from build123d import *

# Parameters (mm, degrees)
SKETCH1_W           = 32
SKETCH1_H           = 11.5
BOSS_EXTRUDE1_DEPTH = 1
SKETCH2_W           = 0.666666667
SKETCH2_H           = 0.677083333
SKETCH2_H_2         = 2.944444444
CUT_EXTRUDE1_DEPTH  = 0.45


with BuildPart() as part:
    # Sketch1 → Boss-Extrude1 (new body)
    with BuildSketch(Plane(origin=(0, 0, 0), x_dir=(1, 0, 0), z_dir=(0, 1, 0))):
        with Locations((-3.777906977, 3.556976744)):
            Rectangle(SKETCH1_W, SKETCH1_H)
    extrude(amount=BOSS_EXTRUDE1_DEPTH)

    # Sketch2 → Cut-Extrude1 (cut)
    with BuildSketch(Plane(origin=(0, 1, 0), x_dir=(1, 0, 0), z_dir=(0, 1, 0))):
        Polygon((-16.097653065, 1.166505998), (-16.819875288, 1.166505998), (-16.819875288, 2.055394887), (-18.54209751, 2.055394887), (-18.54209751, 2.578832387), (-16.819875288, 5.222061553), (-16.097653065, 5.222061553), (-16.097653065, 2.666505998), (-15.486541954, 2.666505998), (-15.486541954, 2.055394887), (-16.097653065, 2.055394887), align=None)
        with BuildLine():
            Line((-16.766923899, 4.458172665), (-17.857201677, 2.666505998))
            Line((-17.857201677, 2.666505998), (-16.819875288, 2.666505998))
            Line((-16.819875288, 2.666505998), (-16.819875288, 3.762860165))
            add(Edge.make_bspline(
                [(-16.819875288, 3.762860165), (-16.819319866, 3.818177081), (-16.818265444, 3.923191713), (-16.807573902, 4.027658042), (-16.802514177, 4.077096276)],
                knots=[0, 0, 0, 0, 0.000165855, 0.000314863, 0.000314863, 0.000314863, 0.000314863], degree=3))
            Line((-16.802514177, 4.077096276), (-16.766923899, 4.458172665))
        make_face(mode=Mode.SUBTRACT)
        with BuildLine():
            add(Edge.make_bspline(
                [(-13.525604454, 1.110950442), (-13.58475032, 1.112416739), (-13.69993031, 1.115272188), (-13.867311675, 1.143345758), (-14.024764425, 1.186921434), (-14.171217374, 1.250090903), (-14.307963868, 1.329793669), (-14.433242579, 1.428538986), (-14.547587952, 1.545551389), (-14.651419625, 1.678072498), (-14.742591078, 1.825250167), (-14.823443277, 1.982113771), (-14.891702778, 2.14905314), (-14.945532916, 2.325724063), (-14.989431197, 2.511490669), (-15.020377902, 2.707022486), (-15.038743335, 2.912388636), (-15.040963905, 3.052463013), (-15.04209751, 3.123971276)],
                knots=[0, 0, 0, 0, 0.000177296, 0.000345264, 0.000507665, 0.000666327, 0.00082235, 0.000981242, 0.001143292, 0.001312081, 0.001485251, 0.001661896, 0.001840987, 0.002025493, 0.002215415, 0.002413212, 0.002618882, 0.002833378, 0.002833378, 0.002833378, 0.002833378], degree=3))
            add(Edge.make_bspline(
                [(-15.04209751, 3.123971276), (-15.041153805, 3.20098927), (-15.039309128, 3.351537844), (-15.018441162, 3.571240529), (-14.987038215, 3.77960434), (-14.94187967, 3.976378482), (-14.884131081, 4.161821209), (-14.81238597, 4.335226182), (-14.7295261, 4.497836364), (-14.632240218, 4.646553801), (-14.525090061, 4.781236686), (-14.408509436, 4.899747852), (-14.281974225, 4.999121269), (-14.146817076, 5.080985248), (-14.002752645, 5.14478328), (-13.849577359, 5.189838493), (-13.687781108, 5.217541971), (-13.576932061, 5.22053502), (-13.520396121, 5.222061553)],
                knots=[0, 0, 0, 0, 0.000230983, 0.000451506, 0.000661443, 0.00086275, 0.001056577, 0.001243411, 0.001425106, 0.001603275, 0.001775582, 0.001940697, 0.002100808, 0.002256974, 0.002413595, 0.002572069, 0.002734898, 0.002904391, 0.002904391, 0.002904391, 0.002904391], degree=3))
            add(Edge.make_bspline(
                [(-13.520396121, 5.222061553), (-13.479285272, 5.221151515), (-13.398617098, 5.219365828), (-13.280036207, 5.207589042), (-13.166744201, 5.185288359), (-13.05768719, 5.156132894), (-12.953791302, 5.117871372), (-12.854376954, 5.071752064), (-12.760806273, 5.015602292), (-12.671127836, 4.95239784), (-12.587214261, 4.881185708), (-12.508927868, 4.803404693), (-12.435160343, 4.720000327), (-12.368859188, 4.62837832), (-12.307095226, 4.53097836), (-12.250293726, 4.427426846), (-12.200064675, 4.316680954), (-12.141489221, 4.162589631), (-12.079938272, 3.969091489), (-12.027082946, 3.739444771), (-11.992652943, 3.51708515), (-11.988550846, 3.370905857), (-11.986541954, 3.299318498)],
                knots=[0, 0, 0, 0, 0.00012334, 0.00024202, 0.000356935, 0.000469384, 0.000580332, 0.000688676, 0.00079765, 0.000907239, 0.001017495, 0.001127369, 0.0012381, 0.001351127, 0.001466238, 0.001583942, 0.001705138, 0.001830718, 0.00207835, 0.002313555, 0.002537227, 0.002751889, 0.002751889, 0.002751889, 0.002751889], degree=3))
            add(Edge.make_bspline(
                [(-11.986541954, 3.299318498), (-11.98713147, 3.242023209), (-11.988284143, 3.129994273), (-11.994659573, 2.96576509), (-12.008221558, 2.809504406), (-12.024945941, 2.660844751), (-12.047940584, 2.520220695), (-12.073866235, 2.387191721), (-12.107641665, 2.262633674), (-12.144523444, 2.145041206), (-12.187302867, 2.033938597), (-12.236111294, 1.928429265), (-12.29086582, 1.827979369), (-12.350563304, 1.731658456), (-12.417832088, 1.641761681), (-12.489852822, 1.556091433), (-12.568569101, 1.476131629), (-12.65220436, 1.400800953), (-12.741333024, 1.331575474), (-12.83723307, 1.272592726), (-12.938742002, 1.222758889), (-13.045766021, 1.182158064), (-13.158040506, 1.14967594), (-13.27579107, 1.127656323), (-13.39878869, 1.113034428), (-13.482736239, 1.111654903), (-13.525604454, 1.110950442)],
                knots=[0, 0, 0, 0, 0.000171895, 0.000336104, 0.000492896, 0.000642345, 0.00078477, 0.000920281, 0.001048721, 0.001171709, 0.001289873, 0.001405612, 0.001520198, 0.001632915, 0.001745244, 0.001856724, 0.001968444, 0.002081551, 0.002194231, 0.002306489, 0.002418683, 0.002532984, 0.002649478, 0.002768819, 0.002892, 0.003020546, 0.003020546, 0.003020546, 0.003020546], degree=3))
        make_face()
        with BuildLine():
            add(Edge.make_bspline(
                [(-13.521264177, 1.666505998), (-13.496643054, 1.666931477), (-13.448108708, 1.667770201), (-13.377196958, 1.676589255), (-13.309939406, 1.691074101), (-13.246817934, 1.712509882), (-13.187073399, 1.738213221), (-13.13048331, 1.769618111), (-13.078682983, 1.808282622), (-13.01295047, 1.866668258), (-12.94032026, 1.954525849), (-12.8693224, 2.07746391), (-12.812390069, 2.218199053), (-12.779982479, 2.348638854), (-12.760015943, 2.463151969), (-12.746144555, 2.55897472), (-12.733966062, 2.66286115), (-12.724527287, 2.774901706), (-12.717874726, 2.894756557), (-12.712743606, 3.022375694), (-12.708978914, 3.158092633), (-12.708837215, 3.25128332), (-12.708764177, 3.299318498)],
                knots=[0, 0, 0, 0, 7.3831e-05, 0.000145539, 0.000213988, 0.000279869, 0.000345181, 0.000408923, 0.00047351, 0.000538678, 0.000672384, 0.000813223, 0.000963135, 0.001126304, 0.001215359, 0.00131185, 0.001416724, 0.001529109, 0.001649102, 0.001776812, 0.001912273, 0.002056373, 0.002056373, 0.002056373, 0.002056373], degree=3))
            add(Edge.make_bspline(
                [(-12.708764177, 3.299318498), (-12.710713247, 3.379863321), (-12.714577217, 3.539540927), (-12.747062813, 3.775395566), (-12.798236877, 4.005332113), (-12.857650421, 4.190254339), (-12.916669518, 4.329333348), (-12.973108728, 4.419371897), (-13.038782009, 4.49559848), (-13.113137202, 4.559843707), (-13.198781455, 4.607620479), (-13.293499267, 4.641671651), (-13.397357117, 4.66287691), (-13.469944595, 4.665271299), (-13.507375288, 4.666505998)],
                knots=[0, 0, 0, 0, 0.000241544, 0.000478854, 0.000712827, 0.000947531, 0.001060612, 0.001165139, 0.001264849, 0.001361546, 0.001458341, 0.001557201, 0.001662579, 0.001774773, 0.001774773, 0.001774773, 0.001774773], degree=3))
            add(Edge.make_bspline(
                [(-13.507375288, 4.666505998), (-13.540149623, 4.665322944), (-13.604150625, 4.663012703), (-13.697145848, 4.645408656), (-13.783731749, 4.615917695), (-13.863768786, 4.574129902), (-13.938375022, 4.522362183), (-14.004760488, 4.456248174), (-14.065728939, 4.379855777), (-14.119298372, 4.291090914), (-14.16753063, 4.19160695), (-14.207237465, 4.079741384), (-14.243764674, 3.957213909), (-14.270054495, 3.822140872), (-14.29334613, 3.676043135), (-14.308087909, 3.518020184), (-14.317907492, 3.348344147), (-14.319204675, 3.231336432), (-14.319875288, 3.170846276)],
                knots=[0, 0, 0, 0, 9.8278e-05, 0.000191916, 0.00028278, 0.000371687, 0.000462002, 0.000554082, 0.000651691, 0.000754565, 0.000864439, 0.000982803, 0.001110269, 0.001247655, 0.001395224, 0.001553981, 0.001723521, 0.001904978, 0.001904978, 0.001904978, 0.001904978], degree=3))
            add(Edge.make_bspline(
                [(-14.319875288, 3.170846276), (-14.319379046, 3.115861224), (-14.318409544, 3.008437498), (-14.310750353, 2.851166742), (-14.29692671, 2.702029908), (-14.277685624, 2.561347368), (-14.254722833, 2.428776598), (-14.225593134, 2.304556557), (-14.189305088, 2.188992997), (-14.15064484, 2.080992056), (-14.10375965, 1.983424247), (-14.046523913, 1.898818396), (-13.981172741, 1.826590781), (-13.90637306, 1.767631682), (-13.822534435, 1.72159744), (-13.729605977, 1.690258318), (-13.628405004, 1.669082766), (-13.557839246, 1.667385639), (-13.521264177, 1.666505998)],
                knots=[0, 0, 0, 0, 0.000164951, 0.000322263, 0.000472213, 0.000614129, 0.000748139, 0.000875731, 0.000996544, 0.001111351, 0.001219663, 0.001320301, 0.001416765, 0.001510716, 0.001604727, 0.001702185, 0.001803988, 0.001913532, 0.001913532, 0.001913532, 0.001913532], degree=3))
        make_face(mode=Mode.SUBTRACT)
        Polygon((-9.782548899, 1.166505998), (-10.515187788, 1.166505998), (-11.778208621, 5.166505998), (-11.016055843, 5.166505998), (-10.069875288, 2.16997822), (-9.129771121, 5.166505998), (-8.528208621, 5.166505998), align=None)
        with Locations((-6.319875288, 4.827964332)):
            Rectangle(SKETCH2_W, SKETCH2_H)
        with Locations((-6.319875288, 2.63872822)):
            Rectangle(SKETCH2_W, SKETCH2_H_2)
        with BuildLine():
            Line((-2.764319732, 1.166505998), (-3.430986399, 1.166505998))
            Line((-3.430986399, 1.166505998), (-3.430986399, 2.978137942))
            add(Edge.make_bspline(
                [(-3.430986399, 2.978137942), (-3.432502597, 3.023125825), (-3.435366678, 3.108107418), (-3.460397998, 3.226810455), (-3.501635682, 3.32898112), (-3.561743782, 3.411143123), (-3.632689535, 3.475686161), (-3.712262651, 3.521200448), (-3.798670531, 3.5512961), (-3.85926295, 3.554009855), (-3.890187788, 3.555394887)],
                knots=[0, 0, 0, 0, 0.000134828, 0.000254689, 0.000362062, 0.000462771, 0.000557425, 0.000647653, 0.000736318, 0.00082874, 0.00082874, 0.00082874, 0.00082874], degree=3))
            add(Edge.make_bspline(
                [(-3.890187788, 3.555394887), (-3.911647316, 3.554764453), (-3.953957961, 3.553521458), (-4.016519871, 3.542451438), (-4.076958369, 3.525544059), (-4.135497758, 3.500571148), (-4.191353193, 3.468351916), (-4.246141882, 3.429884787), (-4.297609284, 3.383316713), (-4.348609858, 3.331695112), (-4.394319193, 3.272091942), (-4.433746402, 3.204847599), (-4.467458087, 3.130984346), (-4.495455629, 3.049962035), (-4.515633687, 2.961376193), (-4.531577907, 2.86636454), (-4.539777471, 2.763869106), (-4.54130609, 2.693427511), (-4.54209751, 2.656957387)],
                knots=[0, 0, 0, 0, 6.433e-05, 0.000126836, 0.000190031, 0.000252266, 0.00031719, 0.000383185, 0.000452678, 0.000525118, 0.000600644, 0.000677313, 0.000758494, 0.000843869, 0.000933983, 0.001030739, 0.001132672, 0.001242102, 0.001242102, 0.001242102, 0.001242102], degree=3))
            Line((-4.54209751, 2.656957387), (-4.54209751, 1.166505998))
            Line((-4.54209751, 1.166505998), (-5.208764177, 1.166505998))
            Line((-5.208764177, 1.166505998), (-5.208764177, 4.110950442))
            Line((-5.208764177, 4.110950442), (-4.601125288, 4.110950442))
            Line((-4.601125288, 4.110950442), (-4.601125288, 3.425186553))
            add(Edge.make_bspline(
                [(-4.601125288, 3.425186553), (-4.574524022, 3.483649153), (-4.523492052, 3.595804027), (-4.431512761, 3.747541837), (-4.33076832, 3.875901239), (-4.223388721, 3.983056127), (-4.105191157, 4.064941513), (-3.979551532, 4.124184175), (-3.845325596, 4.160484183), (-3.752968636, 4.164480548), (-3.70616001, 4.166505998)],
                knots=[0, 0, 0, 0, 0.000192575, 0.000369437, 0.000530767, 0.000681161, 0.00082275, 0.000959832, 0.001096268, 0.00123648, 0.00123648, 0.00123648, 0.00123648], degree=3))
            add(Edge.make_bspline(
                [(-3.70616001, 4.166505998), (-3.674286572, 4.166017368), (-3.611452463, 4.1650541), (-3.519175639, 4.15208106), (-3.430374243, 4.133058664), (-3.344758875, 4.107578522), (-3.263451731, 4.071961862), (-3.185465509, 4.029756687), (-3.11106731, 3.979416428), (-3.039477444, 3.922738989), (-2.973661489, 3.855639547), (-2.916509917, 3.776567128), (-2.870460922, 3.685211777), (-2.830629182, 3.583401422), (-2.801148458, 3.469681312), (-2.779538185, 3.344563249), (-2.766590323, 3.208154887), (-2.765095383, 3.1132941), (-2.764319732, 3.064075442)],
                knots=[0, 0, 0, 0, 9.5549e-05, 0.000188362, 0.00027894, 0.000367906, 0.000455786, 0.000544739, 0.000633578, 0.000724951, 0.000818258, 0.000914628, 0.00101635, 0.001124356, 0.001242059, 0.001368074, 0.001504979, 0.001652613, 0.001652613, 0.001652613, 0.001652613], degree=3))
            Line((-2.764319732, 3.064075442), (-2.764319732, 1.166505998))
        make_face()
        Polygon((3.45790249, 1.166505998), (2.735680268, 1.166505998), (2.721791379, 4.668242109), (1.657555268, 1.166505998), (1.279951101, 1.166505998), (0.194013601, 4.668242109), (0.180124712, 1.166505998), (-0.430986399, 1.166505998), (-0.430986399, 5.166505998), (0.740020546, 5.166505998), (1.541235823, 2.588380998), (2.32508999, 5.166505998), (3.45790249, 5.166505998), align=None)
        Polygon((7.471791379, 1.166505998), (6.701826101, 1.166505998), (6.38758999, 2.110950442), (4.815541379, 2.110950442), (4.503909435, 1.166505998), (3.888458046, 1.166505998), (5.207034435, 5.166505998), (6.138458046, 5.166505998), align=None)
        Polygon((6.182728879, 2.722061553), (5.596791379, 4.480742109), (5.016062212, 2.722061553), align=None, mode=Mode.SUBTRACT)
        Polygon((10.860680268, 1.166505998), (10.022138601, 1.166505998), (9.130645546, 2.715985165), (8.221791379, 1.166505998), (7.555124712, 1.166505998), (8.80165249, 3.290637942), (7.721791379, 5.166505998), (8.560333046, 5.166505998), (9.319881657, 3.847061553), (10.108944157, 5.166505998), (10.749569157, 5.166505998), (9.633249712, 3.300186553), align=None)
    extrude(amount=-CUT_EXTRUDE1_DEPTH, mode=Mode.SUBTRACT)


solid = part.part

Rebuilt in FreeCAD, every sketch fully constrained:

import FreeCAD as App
import Part
import Sketcher
from FreeCAD import Vector

doc = App.newDocument("Part")
params = doc.addObject("Spreadsheet::Sheet", "Params")
for row, (alias, value) in enumerate([
    ("sketch1_width", "32 mm"),
    ("sketch1_height", "11.5 mm"),
    ("pad1_length", "1 mm"),
    ("sketch2_height", "4 mm"),
    ("sketch2_height2", "4 mm"),
    ("pocket1_length", "0.45 mm"),
], start=1):
    params.set(f"A{row}", alias)
    params.set(f"B{row}", "=" + value)
    params.setAlias(f"B{row}", alias)

body = doc.addObject("PartDesign::Body", "Body")

sketch1 = body.newObject("Sketcher::SketchObject", "Sketch")
sketch1.AttachmentSupport = (doc.getObject("XZ_Plane"), [""])
sketch1.MapMode = "FlatFace"
sketch1.addGeometry(Part.LineSegment(Vector(-20, -9, 0), Vector(-20, 2, 0)), False)
sketch1.addGeometry(Part.LineSegment(Vector(-20, 2, 0), Vector(12, 2, 0)), False)
sketch1.addGeometry(Part.LineSegment(Vector(12, 2, 0), Vector(12, -9, 0)), False)
sketch1.addGeometry(Part.LineSegment(Vector(12, -9, 0), Vector(-20, -9, 0)), False)
sketch1.addConstraint(Sketcher.Constraint("Coincident", 0, 2, 1, 1))
sketch1.addConstraint(Sketcher.Constraint("Coincident", 1, 2, 2, 1))
sketch1.addConstraint(Sketcher.Constraint("Coincident", 2, 2, 3, 1))
sketch1.addConstraint(Sketcher.Constraint("Coincident", 3, 2, 0, 1))
sketch1.addConstraint(Sketcher.Constraint("Vertical", 0))
sketch1.addConstraint(Sketcher.Constraint("Horizontal", 1))
sketch1.addConstraint(Sketcher.Constraint("Vertical", 2))
sketch1.addConstraint(Sketcher.Constraint("Horizontal", 3))
sketch1.addConstraint(Sketcher.Constraint("DistanceX", 1, 1, 1, 2, 32.0))
sketch1.addConstraint(Sketcher.Constraint("DistanceY", 0, 1, 0, 2, 11.5))
sketch1.addConstraint(Sketcher.Constraint("DistanceX", 0, 2, -1, 1, 19.777907))
sketch1.addConstraint(Sketcher.Constraint("DistanceY", -1, 1, 0, 2, 2.193023))
sketch1.setExpression("Constraints[8]", "Params.sketch1_width")
sketch1.setExpression("Constraints[9]", "Params.sketch1_height")
pad1 = body.newObject("PartDesign::Pad", "Pad")
pad1.Profile = sketch1
pad1.setExpression("Length", "Params.pad1_length")
pad1.Reversed = True

sketch2 = body.newObject("Sketcher::SketchObject", "Sketch001")
sketch2.AttachmentSupport = (doc.getObject("XZ_Plane"), [""])
sketch2.MapMode = "FlatFace"
sketch2.AttachmentOffset = App.Placement(Vector(0, 0, -1), App.Rotation())
sketch2.addGeometry(Part.LineSegment(Vector(-16.819875, -1.166506, 0), Vector(-16.097653, -1.166506, 0)), False)
sketch2.addGeometry(Part.LineSegment(Vector(-16.097653, -1.166506, 0), Vector(-16.097653, -2.055395, 0)), False)
sketch2.addGeometry(Part.LineSegment(Vector(-16.097653, -2.055395, 0), Vector(-15.486542, -2.055395, 0)), False)
sketch2.addGeometry(Part.LineSegment(Vector(-15.486542, -2.055395, 0), Vector(-15.486542, -2.666506, 0)), False)
sketch2.addGeometry(Part.LineSegment(Vector(-15.486542, -2.666506, 0), Vector(-16.097653, -2.666506, 0)), False)
sketch2.addGeometry(Part.LineSegment(Vector(-16.097653, -2.666506, 0), Vector(-16.097653, -5.222062, 0)), False)
sketch2.addGeometry(Part.LineSegment(Vector(-16.097653, -5.222062, 0), Vector(-16.819875, -5.222062, 0)), False)
sketch2.addGeometry(Part.LineSegment(Vector(-16.819875, -5.222062, 0), Vector(-18.542098, -2.578832, 0)), False)
sketch2.addGeometry(Part.LineSegment(Vector(-18.542098, -2.578832, 0), Vector(-18.542098, -2.055395, 0)), False)
sketch2.addGeometry(Part.LineSegment(Vector(-18.542098, -2.055395, 0), Vector(-16.819875, -2.055395, 0)), False)
sketch2.addGeometry(Part.LineSegment(Vector(-16.819875, -2.055395, 0), Vector(-16.819875, -1.166506, 0)), False)
sketch2.addGeometry(Part.LineSegment(Vector(-16.766924, -4.458173, 0), Vector(-16.802514, -4.077096, 0)), False)
sketch2.addGeometry(Part.BSplineCurve([Vector(-16.819875, -3.76286, 0), Vector(-16.81932, -3.818177, 0), Vector(-16.818265, -3.923192, 0), Vector(-16.807574, -4.027658, 0), Vector(-16.802514, -4.077096, 0)], [4, 1, 4], [0, 0.000165855, 0.000314863], False, 3, [1, 1, 1, 1, 1], False), False)
sketch2.addGeometry(Part.LineSegment(Vector(-16.819875, -3.76286, 0), Vector(-16.819875, -2.666506, 0)), False)
sketch2.addGeometry(Part.LineSegment(Vector(-16.819875, -2.666506, 0), Vector(-17.857202, -2.666506, 0)), False)
sketch2.addGeometry(Part.LineSegment(Vector(-17.857202, -2.666506, 0), Vector(-16.766924, -4.458173, 0)), False)
sketch2.addGeometry(Part.BSplineCurve([Vector(-13.525604, -1.11095, 0), Vector(-13.58475, -1.112417, 0), Vector(-13.69993, -1.115272, 0), Vector(-13.867312, -1.143346, 0), Vector(-14.024764, -1.186921, 0), Vector(-14.171217, -1.250091, 0), Vector(-14.307964, -1.329794, 0), Vector(-14.433243, -1.428539, 0), Vector(-14.547588, -1.545551, 0), Vector(-14.65142, -1.678072, 0), Vector(-14.742591, -1.82525, 0), Vector(-14.823443, -1.982114, 0), Vector(-14.891703, -2.149053, 0), Vector(-14.945533, -2.325724, 0), Vector(-14.989431, -2.511491, 0), Vector(-15.020378, -2.707022, 0), Vector(-15.038743, -2.912389, 0), Vector(-15.040964, -3.052463, 0), Vector(-15.042098, -3.123971, 0)], [4, 1, 1, 1, 1, 1, 1, 1, 1, 1, 1, 1, 1, 1, 1, 1, 4], [0, 0.000177296, 0.000345264, 0.000507665, 0.000666327, 0.00082235, 0.000981242, 0.001143292, 0.001312081, 0.001485251, 0.001661896, 0.001840987, 0.002025493, 0.002215415, 0.002413212, 0.002618882, 0.002833378], False, 3, [1, 1, 1, 1, 1, 1, 1, 1, 1, 1, 1, 1, 1, 1, 1, 1, 1, 1, 1], False), False)
sketch2.addGeometry(Part.BSplineCurve([Vector(-11.986542, -3.299318, 0), Vector(-11.987131, -3.242023, 0), Vector(-11.988284, -3.129994, 0), Vector(-11.99466, -2.965765, 0), Vector(-12.008222, -2.809504, 0), Vector(-12.024946, -2.660845, 0), Vector(-12.047941, -2.520221, 0), Vector(-12.073866, -2.387192, 0), Vector(-12.107642, -2.262634, 0), Vector(-12.144523, -2.145041, 0), Vector(-12.187303, -2.033939, 0), Vector(-12.236111, -1.928429, 0), Vector(-12.290866, -1.827979, 0), Vector(-12.350563, -1.731658, 0), Vector(-12.417832, -1.641762, 0), Vector(-12.489853, -1.556091, 0), Vector(-12.568569, -1.476132, 0), Vector(-12.652204, -1.400801, 0), Vector(-12.741333, -1.331575, 0), Vector(-12.837233, -1.272593, 0), Vector(-12.938742, -1.222759, 0), Vector(-13.045766, -1.182158, 0), Vector(-13.158041, -1.149676, 0), Vector(-13.275791, -1.127656, 0), Vector(-13.398789, -1.113034, 0), Vector(-13.482736, -1.111655, 0), Vector(-13.525604, -1.11095, 0)], [4, 1, 1, 1, 1, 1, 1, 1, 1, 1, 1, 1, 1, 1, 1, 1, 1, 1, 1, 1, 1, 1, 1, 1, 4], [0, 0.000171895, 0.000336104, 0.000492896, 0.000642345, 0.00078477, 0.000920281, 0.001048721, 0.001171709, 0.001289873, 0.001405612, 0.001520198, 0.001632915, 0.001745244, 0.001856724, 0.001968444, 0.002081551, 0.002194231, 0.002306489, 0.002418683, 0.002532984, 0.002649478, 0.002768819, 0.002892, 0.003020546], False, 3, [1, 1, 1, 1, 1, 1, 1, 1, 1, 1, 1, 1, 1, 1, 1, 1, 1, 1, 1, 1, 1, 1, 1, 1, 1, 1, 1], False), False)
sketch2.addGeometry(Part.BSplineCurve([Vector(-13.520396, -5.222062, 0), Vector(-13.479285, -5.221152, 0), Vector(-13.398617, -5.219366, 0), Vector(-13.280036, -5.207589, 0), Vector(-13.166744, -5.185288, 0), Vector(-13.057687, -5.156133, 0), Vector(-12.953791, -5.117871, 0), Vector(-12.854377, -5.071752, 0), Vector(-12.760806, -5.015602, 0), Vector(-12.671128, -4.952398, 0), Vector(-12.587214, -4.881186, 0), Vector(-12.508928, -4.803405, 0), Vector(-12.43516, -4.72, 0), Vector(-12.368859, -4.628378, 0), Vector(-12.307095, -4.530978, 0), Vector(-12.250294, -4.427427, 0), Vector(-12.200065, -4.316681, 0), Vector(-12.141489, -4.16259, 0), Vector(-12.079938, -3.969091, 0), Vector(-12.027083, -3.739445, 0), Vector(-11.992653, -3.517085, 0), Vector(-11.988551, -3.370906, 0), Vector(-11.986542, -3.299318, 0)], [4, 1, 1, 1, 1, 1, 1, 1, 1, 1, 1, 1, 1, 1, 1, 1, 1, 1, 1, 1, 4], [0, 0.00012334, 0.00024202, 0.000356935, 0.000469384, 0.000580332, 0.000688676, 0.00079765, 0.000907239, 0.001017495, 0.001127369, 0.0012381, 0.001351127, 0.001466238, 0.001583942, 0.001705138, 0.001830718, 0.00207835, 0.002313555, 0.002537227, 0.002751889], False, 3, [1, 1, 1, 1, 1, 1, 1, 1, 1, 1, 1, 1, 1, 1, 1, 1, 1, 1, 1, 1, 1, 1, 1], False), False)
sketch2.addGeometry(Part.BSplineCurve([Vector(-15.042098, -3.123971, 0), Vector(-15.041154, -3.200989, 0), Vector(-15.039309, -3.351538, 0), Vector(-15.018441, -3.571241, 0), Vector(-14.987038, -3.779604, 0), Vector(-14.94188, -3.976378, 0), Vector(-14.884131, -4.161821, 0), Vector(-14.812386, -4.335226, 0), Vector(-14.729526, -4.497836, 0), Vector(-14.63224, -4.646554, 0), Vector(-14.52509, -4.781237, 0), Vector(-14.408509, -4.899748, 0), Vector(-14.281974, -4.999121, 0), Vector(-14.146817, -5.080985, 0), Vector(-14.002753, -5.144783, 0), Vector(-13.849577, -5.189838, 0), Vector(-13.687781, -5.217542, 0), Vector(-13.576932, -5.220535, 0), Vector(-13.520396, -5.222062, 0)], [4, 1, 1, 1, 1, 1, 1, 1, 1, 1, 1, 1, 1, 1, 1, 1, 4], [0, 0.000230983, 0.000451506, 0.000661443, 0.00086275, 0.001056577, 0.001243411, 0.001425106, 0.001603275, 0.001775582, 0.001940697, 0.002100808, 0.002256974, 0.002413595, 0.002572069, 0.002734898, 0.002904391], False, 3, [1, 1, 1, 1, 1, 1, 1, 1, 1, 1, 1, 1, 1, 1, 1, 1, 1, 1, 1], False), False)
sketch2.addGeometry(Part.BSplineCurve([Vector(-14.319875, -3.170846, 0), Vector(-14.319379, -3.115861, 0), Vector(-14.31841, -3.008437, 0), Vector(-14.31075, -2.851167, 0), Vector(-14.296927, -2.70203, 0), Vector(-14.277686, -2.561347, 0), Vector(-14.254723, -2.428777, 0), Vector(-14.225593, -2.304557, 0), Vector(-14.189305, -2.188993, 0), Vector(-14.150645, -2.080992, 0), Vector(-14.10376, -1.983424, 0), Vector(-14.046524, -1.898818, 0), Vector(-13.981173, -1.826591, 0), Vector(-13.906373, -1.767632, 0), Vector(-13.822534, -1.721597, 0), Vector(-13.729606, -1.690258, 0), Vector(-13.628405, -1.669083, 0), Vector(-13.557839, -1.667386, 0), Vector(-13.521264, -1.666506, 0)], [4, 1, 1, 1, 1, 1, 1, 1, 1, 1, 1, 1, 1, 1, 1, 1, 4], [0, 0.000164951, 0.000322263, 0.000472213, 0.000614129, 0.000748139, 0.000875731, 0.000996544, 0.001111351, 0.001219663, 0.001320301, 0.001416765, 0.001510716, 0.001604727, 0.001702185, 0.001803988, 0.001913532], False, 3, [1, 1, 1, 1, 1, 1, 1, 1, 1, 1, 1, 1, 1, 1, 1, 1, 1, 1, 1], False), False)
sketch2.addGeometry(Part.BSplineCurve([Vector(-13.507375, -4.666506, 0), Vector(-13.54015, -4.665323, 0), Vector(-13.604151, -4.663013, 0), Vector(-13.697146, -4.645409, 0), Vector(-13.783732, -4.615918, 0), Vector(-13.863769, -4.57413, 0), Vector(-13.938375, -4.522362, 0), Vector(-14.00476, -4.456248, 0), Vector(-14.065729, -4.379856, 0), Vector(-14.119298, -4.291091, 0), Vector(-14.167531, -4.191607, 0), Vector(-14.207237, -4.079741, 0), Vector(-14.243765, -3.957214, 0), Vector(-14.270054, -3.822141, 0), Vector(-14.293346, -3.676043, 0), Vector(-14.308088, -3.51802, 0), Vector(-14.317907, -3.348344, 0), Vector(-14.319205, -3.231336, 0), Vector(-14.319875, -3.170846, 0)], [4, 1, 1, 1, 1, 1, 1, 1, 1, 1, 1, 1, 1, 1, 1, 1, 4], [0, 0.000098278, 0.000191916, 0.00028278, 0.000371687, 0.000462002, 0.000554082, 0.000651691, 0.000754565, 0.000864439, 0.000982803, 0.001110269, 0.001247655, 0.001395224, 0.001553981, 0.001723521, 0.001904978], False, 3, [1, 1, 1, 1, 1, 1, 1, 1, 1, 1, 1, 1, 1, 1, 1, 1, 1, 1, 1], False), False)
sketch2.addGeometry(Part.BSplineCurve([Vector(-12.708764, -3.299318, 0), Vector(-12.710713, -3.379863, 0), Vector(-12.714577, -3.539541, 0), Vector(-12.747063, -3.775396, 0), Vector(-12.798237, -4.005332, 0), Vector(-12.85765, -4.190254, 0), Vector(-12.91667, -4.329333, 0), Vector(-12.973109, -4.419372, 0), Vector(-13.038782, -4.495598, 0), Vector(-13.113137, -4.559844, 0), Vector(-13.198781, -4.60762, 0), Vector(-13.293499, -4.641672, 0), Vector(-13.397357, -4.662877, 0), Vector(-13.469945, -4.665271, 0), Vector(-13.507375, -4.666506, 0)], [4, 1, 1, 1, 1, 1, 1, 1, 1, 1, 1, 1, 4], [0, 0.000241544, 0.000478854, 0.000712827, 0.000947531, 0.001060612, 0.001165139, 0.001264849, 0.001361546, 0.001458341, 0.001557201, 0.001662579, 0.001774773], False, 3, [1, 1, 1, 1, 1, 1, 1, 1, 1, 1, 1, 1, 1, 1, 1], False), False)
sketch2.addGeometry(Part.BSplineCurve([Vector(-13.521264, -1.666506, 0), Vector(-13.496643, -1.666931, 0), Vector(-13.448109, -1.66777, 0), Vector(-13.377197, -1.676589, 0), Vector(-13.309939, -1.691074, 0), Vector(-13.246818, -1.71251, 0), Vector(-13.187073, -1.738213, 0), Vector(-13.130483, -1.769618, 0), Vector(-13.078683, -1.808283, 0), Vector(-13.01295, -1.866668, 0), Vector(-12.94032, -1.954526, 0), Vector(-12.869322, -2.077464, 0), Vector(-12.81239, -2.218199, 0), Vector(-12.779982, -2.348639, 0), Vector(-12.760016, -2.463152, 0), Vector(-12.746145, -2.558975, 0), Vector(-12.733966, -2.662861, 0), Vector(-12.724527, -2.774902, 0), Vector(-12.717875, -2.894757, 0), Vector(-12.712744, -3.022376, 0), Vector(-12.708979, -3.158093, 0), Vector(-12.708837, -3.251283, 0), Vector(-12.708764, -3.299318, 0)], [4, 1, 1, 1, 1, 1, 1, 1, 1, 1, 1, 1, 1, 1, 1, 1, 1, 1, 1, 1, 4], [0, 0.000073831, 0.000145539, 0.000213988, 0.000279869, 0.000345181, 0.000408923, 0.00047351, 0.000538678, 0.000672384, 0.000813223, 0.000963135, 0.001126304, 0.001215359, 0.00131185, 0.001416724, 0.001529109, 0.001649102, 0.001776812, 0.001912273, 0.002056373], False, 3, [1, 1, 1, 1, 1, 1, 1, 1, 1, 1, 1, 1, 1, 1, 1, 1, 1, 1, 1, 1, 1, 1, 1], False), False)
sketch2.addGeometry(Part.LineSegment(Vector(-10.515188, -1.166506, 0), Vector(-9.782549, -1.166506, 0)), False)
sketch2.addGeometry(Part.LineSegment(Vector(-9.782549, -1.166506, 0), Vector(-8.528209, -5.166506, 0)), False)
sketch2.addGeometry(Part.LineSegment(Vector(-8.528209, -5.166506, 0), Vector(-9.129771, -5.166506, 0)), False)
sketch2.addGeometry(Part.LineSegment(Vector(-9.129771, -5.166506, 0), Vector(-10.069875, -2.169978, 0)), False)
sketch2.addGeometry(Part.LineSegment(Vector(-10.069875, -2.169978, 0), Vector(-11.016056, -5.166506, 0)), False)
sketch2.addGeometry(Part.LineSegment(Vector(-11.016056, -5.166506, 0), Vector(-11.778209, -5.166506, 0)), False)
sketch2.addGeometry(Part.LineSegment(Vector(-11.778209, -5.166506, 0), Vector(-10.515188, -1.166506, 0)), False)
sketch2.addGeometry(Part.LineSegment(Vector(-6.653209, -5.166506, 0), Vector(-6.653209, -4.489423, 0)), False)
sketch2.addGeometry(Part.LineSegment(Vector(-6.653209, -4.489423, 0), Vector(-5.986542, -4.489423, 0)), False)
sketch2.addGeometry(Part.LineSegment(Vector(-5.986542, -4.489423, 0), Vector(-5.986542, -5.166506, 0)), False)
sketch2.addGeometry(Part.LineSegment(Vector(-5.986542, -5.166506, 0), Vector(-6.653209, -5.166506, 0)), False)
sketch2.addGeometry(Part.LineSegment(Vector(-6.653209, -4.11095, 0), Vector(-6.653209, -1.166506, 0)), False)
sketch2.addGeometry(Part.LineSegment(Vector(-6.653209, -1.166506, 0), Vector(-5.986542, -1.166506, 0)), False)
sketch2.addGeometry(Part.LineSegment(Vector(-5.986542, -1.166506, 0), Vector(-5.986542, -4.11095, 0)), False)
sketch2.addGeometry(Part.LineSegment(Vector(-5.986542, -4.11095, 0), Vector(-6.653209, -4.11095, 0)), False)
sketch2.addGeometry(Part.LineSegment(Vector(-3.430986, -1.166506, 0), Vector(-2.76432, -1.166506, 0)), False)
sketch2.addGeometry(Part.LineSegment(Vector(-2.76432, -1.166506, 0), Vector(-2.76432, -3.064075, 0)), False)
sketch2.addGeometry(Part.BSplineCurve([Vector(-3.70616, -4.166506, 0), Vector(-3.674287, -4.166017, 0), Vector(-3.611452, -4.165054, 0), Vector(-3.519176, -4.152081, 0), Vector(-3.430374, -4.133059, 0), Vector(-3.344759, -4.107579, 0), Vector(-3.263452, -4.071962, 0), Vector(-3.185466, -4.029757, 0), Vector(-3.111067, -3.979416, 0), Vector(-3.039477, -3.922739, 0), Vector(-2.973661, -3.85564, 0), Vector(-2.91651, -3.776567, 0), Vector(-2.870461, -3.685212, 0), Vector(-2.830629, -3.583401, 0), Vector(-2.801148, -3.469681, 0), Vector(-2.779538, -3.344563, 0), Vector(-2.76659, -3.208155, 0), Vector(-2.765095, -3.113294, 0), Vector(-2.76432, -3.064075, 0)], [4, 1, 1, 1, 1, 1, 1, 1, 1, 1, 1, 1, 1, 1, 1, 1, 4], [0, 0.000095549, 0.000188362, 0.00027894, 0.000367906, 0.000455786, 0.000544739, 0.000633578, 0.000724951, 0.000818258, 0.000914628, 0.00101635, 0.001124356, 0.001242059, 0.001368074, 0.001504979, 0.001652613], False, 3, [1, 1, 1, 1, 1, 1, 1, 1, 1, 1, 1, 1, 1, 1, 1, 1, 1, 1, 1], False), False)
sketch2.addGeometry(Part.BSplineCurve([Vector(-4.601125, -3.425187, 0), Vector(-4.574524, -3.483649, 0), Vector(-4.523492, -3.595804, 0), Vector(-4.431513, -3.747542, 0), Vector(-4.330768, -3.875901, 0), Vector(-4.223389, -3.983056, 0), Vector(-4.105191, -4.064942, 0), Vector(-3.979552, -4.124184, 0), Vector(-3.845326, -4.160484, 0), Vector(-3.752969, -4.164481, 0), Vector(-3.70616, -4.166506, 0)], [4, 1, 1, 1, 1, 1, 1, 1, 4], [0, 0.000192575, 0.000369437, 0.000530767, 0.000681161, 0.00082275, 0.000959832, 0.001096268, 0.00123648], False, 3, [1, 1, 1, 1, 1, 1, 1, 1, 1, 1, 1], False), False)
sketch2.addGeometry(Part.LineSegment(Vector(-4.601125, -3.425187, 0), Vector(-4.601125, -4.11095, 0)), False)
sketch2.addGeometry(Part.LineSegment(Vector(-4.601125, -4.11095, 0), Vector(-5.208764, -4.11095, 0)), False)
sketch2.addGeometry(Part.LineSegment(Vector(-5.208764, -4.11095, 0), Vector(-5.208764, -1.166506, 0)), False)
sketch2.addGeometry(Part.LineSegment(Vector(-5.208764, -1.166506, 0), Vector(-4.542098, -1.166506, 0)), False)
sketch2.addGeometry(Part.LineSegment(Vector(-4.542098, -1.166506, 0), Vector(-4.542098, -2.656957, 0)), False)
sketch2.addGeometry(Part.BSplineCurve([Vector(-3.890188, -3.555395, 0), Vector(-3.911647, -3.554764, 0), Vector(-3.953958, -3.553521, 0), Vector(-4.01652, -3.542451, 0), Vector(-4.076958, -3.525544, 0), Vector(-4.135498, -3.500571, 0), Vector(-4.191353, -3.468352, 0), Vector(-4.246142, -3.429885, 0), Vector(-4.297609, -3.383317, 0), Vector(-4.34861, -3.331695, 0), Vector(-4.394319, -3.272092, 0), Vector(-4.433746, -3.204848, 0), Vector(-4.467458, -3.130984, 0), Vector(-4.495456, -3.049962, 0), Vector(-4.515634, -2.961376, 0), Vector(-4.531578, -2.866365, 0), Vector(-4.539777, -2.763869, 0), Vector(-4.541306, -2.693428, 0), Vector(-4.542098, -2.656957, 0)], [4, 1, 1, 1, 1, 1, 1, 1, 1, 1, 1, 1, 1, 1, 1, 1, 4], [0, 0.00006433, 0.000126836, 0.000190031, 0.000252266, 0.00031719, 0.000383185, 0.000452678, 0.000525118, 0.000600644, 0.000677313, 0.000758494, 0.000843869, 0.000933983, 0.001030739, 0.001132672, 0.001242102], False, 3, [1, 1, 1, 1, 1, 1, 1, 1, 1, 1, 1, 1, 1, 1, 1, 1, 1, 1, 1], False), False)
sketch2.addGeometry(Part.BSplineCurve([Vector(-3.430986, -2.978138, 0), Vector(-3.432503, -3.023126, 0), Vector(-3.435367, -3.108107, 0), Vector(-3.460398, -3.22681, 0), Vector(-3.501636, -3.328981, 0), Vector(-3.561744, -3.411143, 0), Vector(-3.63269, -3.475686, 0), Vector(-3.712263, -3.5212, 0), Vector(-3.798671, -3.551296, 0), Vector(-3.859263, -3.55401, 0), Vector(-3.890188, -3.555395, 0)], [4, 1, 1, 1, 1, 1, 1, 1, 4], [0, 0.000134828, 0.000254689, 0.000362062, 0.000462771, 0.000557425, 0.000647653, 0.000736318, 0.00082874], False, 3, [1, 1, 1, 1, 1, 1, 1, 1, 1, 1, 1], False), False)
sketch2.addGeometry(Part.LineSegment(Vector(-3.430986, -2.978138, 0), Vector(-3.430986, -1.166506, 0)), False)
sketch2.addGeometry(Part.LineSegment(Vector(2.73568, -1.166506, 0), Vector(3.457902, -1.166506, 0)), False)
sketch2.addGeometry(Part.LineSegment(Vector(3.457902, -1.166506, 0), Vector(3.457902, -5.166506, 0)), False)
sketch2.addGeometry(Part.LineSegment(Vector(3.457902, -5.166506, 0), Vector(2.32509, -5.166506, 0)), False)
sketch2.addGeometry(Part.LineSegment(Vector(2.32509, -5.166506, 0), Vector(1.541236, -2.588381, 0)), False)
sketch2.addGeometry(Part.LineSegment(Vector(1.541236, -2.588381, 0), Vector(0.740021, -5.166506, 0)), False)
sketch2.addGeometry(Part.LineSegment(Vector(0.740021, -5.166506, 0), Vector(-0.430986, -5.166506, 0)), False)
sketch2.addGeometry(Part.LineSegment(Vector(-0.430986, -5.166506, 0), Vector(-0.430986, -1.166506, 0)), False)
sketch2.addGeometry(Part.LineSegment(Vector(-0.430986, -1.166506, 0), Vector(0.180125, -1.166506, 0)), False)
sketch2.addGeometry(Part.LineSegment(Vector(0.180125, -1.166506, 0), Vector(0.194014, -4.668242, 0)), False)
sketch2.addGeometry(Part.LineSegment(Vector(0.194014, -4.668242, 0), Vector(1.279951, -1.166506, 0)), False)
sketch2.addGeometry(Part.LineSegment(Vector(1.279951, -1.166506, 0), Vector(1.657555, -1.166506, 0)), False)
sketch2.addGeometry(Part.LineSegment(Vector(1.657555, -1.166506, 0), Vector(2.721791, -4.668242, 0)), False)
sketch2.addGeometry(Part.LineSegment(Vector(2.721791, -4.668242, 0), Vector(2.73568, -1.166506, 0)), False)
sketch2.addGeometry(Part.LineSegment(Vector(6.701826, -1.166506, 0), Vector(7.471791, -1.166506, 0)), False)
sketch2.addGeometry(Part.LineSegment(Vector(7.471791, -1.166506, 0), Vector(6.138458, -5.166506, 0)), False)
sketch2.addGeometry(Part.LineSegment(Vector(6.138458, -5.166506, 0), Vector(5.207034, -5.166506, 0)), False)
sketch2.addGeometry(Part.LineSegment(Vector(5.207034, -5.166506, 0), Vector(3.888458, -1.166506, 0)), False)
sketch2.addGeometry(Part.LineSegment(Vector(3.888458, -1.166506, 0), Vector(4.503909, -1.166506, 0)), False)
sketch2.addGeometry(Part.LineSegment(Vector(4.503909, -1.166506, 0), Vector(4.815541, -2.11095, 0)), False)
sketch2.addGeometry(Part.LineSegment(Vector(4.815541, -2.11095, 0), Vector(6.38759, -2.11095, 0)), False)
sketch2.addGeometry(Part.LineSegment(Vector(6.38759, -2.11095, 0), Vector(6.701826, -1.166506, 0)), False)
sketch2.addGeometry(Part.LineSegment(Vector(6.182729, -2.722062, 0), Vector(5.016062, -2.722062, 0)), False)
sketch2.addGeometry(Part.LineSegment(Vector(5.016062, -2.722062, 0), Vector(5.596791, -4.480742, 0)), False)
sketch2.addGeometry(Part.LineSegment(Vector(5.596791, -4.480742, 0), Vector(6.182729, -2.722062, 0)), False)
sketch2.addGeometry(Part.LineSegment(Vector(10.022139, -1.166506, 0), Vector(10.86068, -1.166506, 0)), False)
sketch2.addGeometry(Part.LineSegment(Vector(10.86068, -1.166506, 0), Vector(9.63325, -3.300187, 0)), False)
sketch2.addGeometry(Part.LineSegment(Vector(9.63325, -3.300187, 0), Vector(10.749569, -5.166506, 0)), False)
sketch2.addGeometry(Part.LineSegment(Vector(10.749569, -5.166506, 0), Vector(10.108944, -5.166506, 0)), False)
sketch2.addGeometry(Part.LineSegment(Vector(10.108944, -5.166506, 0), Vector(9.319882, -3.847062, 0)), False)
sketch2.addGeometry(Part.LineSegment(Vector(9.319882, -3.847062, 0), Vector(8.560333, -5.166506, 0)), False)
sketch2.addGeometry(Part.LineSegment(Vector(8.560333, -5.166506, 0), Vector(7.721791, -5.166506, 0)), False)
sketch2.addGeometry(Part.LineSegment(Vector(7.721791, -5.166506, 0), Vector(8.801652, -3.290638, 0)), False)
sketch2.addGeometry(Part.LineSegment(Vector(8.801652, -3.290638, 0), Vector(7.555125, -1.166506, 0)), False)
sketch2.addGeometry(Part.LineSegment(Vector(7.555125, -1.166506, 0), Vector(8.221791, -1.166506, 0)), False)
sketch2.addGeometry(Part.LineSegment(Vector(8.221791, -1.166506, 0), Vector(9.130646, -2.715985, 0)), False)
sketch2.addGeometry(Part.LineSegment(Vector(9.130646, -2.715985, 0), Vector(10.022139, -1.166506, 0)), False)
sketch2.addConstraint(Sketcher.Constraint("Block", 12))
sketch2.addConstraint(Sketcher.Constraint("Block", 16))
sketch2.addConstraint(Sketcher.Constraint("Block", 17))
sketch2.addConstraint(Sketcher.Constraint("Block", 18))
sketch2.addConstraint(Sketcher.Constraint("Block", 19))
sketch2.addConstraint(Sketcher.Constraint("Block", 20))
sketch2.addConstraint(Sketcher.Constraint("Block", 21))
sketch2.addConstraint(Sketcher.Constraint("Block", 22))
sketch2.addConstraint(Sketcher.Constraint("Block", 23))
sketch2.addConstraint(Sketcher.Constraint("Block", 41))
sketch2.addConstraint(Sketcher.Constraint("Block", 42))
sketch2.addConstraint(Sketcher.Constraint("Block", 48))
sketch2.addConstraint(Sketcher.Constraint("Block", 49))
sketch2.addConstraint(Sketcher.Constraint("Coincident", 0, 2, 1, 1))
sketch2.addConstraint(Sketcher.Constraint("Coincident", 1, 2, 2, 1))
sketch2.addConstraint(Sketcher.Constraint("Coincident", 2, 2, 3, 1))
sketch2.addConstraint(Sketcher.Constraint("Coincident", 3, 2, 4, 1))
sketch2.addConstraint(Sketcher.Constraint("Coincident", 4, 2, 5, 1))
sketch2.addConstraint(Sketcher.Constraint("Coincident", 5, 2, 6, 1))
sketch2.addConstraint(Sketcher.Constraint("Coincident", 6, 2, 7, 1))
sketch2.addConstraint(Sketcher.Constraint("Coincident", 7, 2, 8, 1))
sketch2.addConstraint(Sketcher.Constraint("Coincident", 8, 2, 9, 1))
sketch2.addConstraint(Sketcher.Constraint("Coincident", 9, 2, 10, 1))
sketch2.addConstraint(Sketcher.Constraint("Coincident", 10, 2, 0, 1))
sketch2.addConstraint(Sketcher.Constraint("Coincident", 11, 2, 12, 2))
sketch2.addConstraint(Sketcher.Constraint("Coincident", 12, 1, 13, 1))
sketch2.addConstraint(Sketcher.Constraint("Coincident", 13, 2, 14, 1))
sketch2.addConstraint(Sketcher.Constraint("Coincident", 14, 2, 15, 1))
sketch2.addConstraint(Sketcher.Constraint("Coincident", 15, 2, 11, 1))
sketch2.addConstraint(Sketcher.Constraint("Coincident", 24, 2, 25, 1))
sketch2.addConstraint(Sketcher.Constraint("Coincident", 25, 2, 26, 1))
sketch2.addConstraint(Sketcher.Constraint("Coincident", 26, 2, 27, 1))
sketch2.addConstraint(Sketcher.Constraint("Coincident", 27, 2, 28, 1))
sketch2.addConstraint(Sketcher.Constraint("Coincident", 28, 2, 29, 1))
sketch2.addConstraint(Sketcher.Constraint("Coincident", 29, 2, 30, 1))
sketch2.addConstraint(Sketcher.Constraint("Coincident", 30, 2, 24, 1))
sketch2.addConstraint(Sketcher.Constraint("Coincident", 31, 2, 32, 1))
sketch2.addConstraint(Sketcher.Constraint("Coincident", 32, 2, 33, 1))
sketch2.addConstraint(Sketcher.Constraint("Coincident", 33, 2, 34, 1))
sketch2.addConstraint(Sketcher.Constraint("Coincident", 34, 2, 31, 1))
sketch2.addConstraint(Sketcher.Constraint("Coincident", 35, 2, 36, 1))
sketch2.addConstraint(Sketcher.Constraint("Coincident", 36, 2, 37, 1))
sketch2.addConstraint(Sketcher.Constraint("Coincident", 37, 2, 38, 1))
sketch2.addConstraint(Sketcher.Constraint("Coincident", 38, 2, 35, 1))
sketch2.addConstraint(Sketcher.Constraint("Coincident", 39, 2, 40, 1))
sketch2.addConstraint(Sketcher.Constraint("Coincident", 40, 2, 41, 2))
sketch2.addConstraint(Sketcher.Constraint("Coincident", 42, 1, 43, 1))
sketch2.addConstraint(Sketcher.Constraint("Coincident", 43, 2, 44, 1))
sketch2.addConstraint(Sketcher.Constraint("Coincident", 44, 2, 45, 1))
sketch2.addConstraint(Sketcher.Constraint("Coincident", 45, 2, 46, 1))
sketch2.addConstraint(Sketcher.Constraint("Coincident", 46, 2, 47, 1))
sketch2.addConstraint(Sketcher.Constraint("Coincident", 47, 2, 48, 2))
sketch2.addConstraint(Sketcher.Constraint("Coincident", 49, 1, 50, 1))
sketch2.addConstraint(Sketcher.Constraint("Coincident", 50, 2, 39, 1))
sketch2.addConstraint(Sketcher.Constraint("Coincident", 51, 2, 52, 1))
sketch2.addConstraint(Sketcher.Constraint("Coincident", 52, 2, 53, 1))
sketch2.addConstraint(Sketcher.Constraint("Coincident", 53, 2, 54, 1))
sketch2.addConstraint(Sketcher.Constraint("Coincident", 54, 2, 55, 1))
sketch2.addConstraint(Sketcher.Constraint("Coincident", 55, 2, 56, 1))
sketch2.addConstraint(Sketcher.Constraint("Coincident", 56, 2, 57, 1))
sketch2.addConstraint(Sketcher.Constraint("Coincident", 57, 2, 58, 1))
sketch2.addConstraint(Sketcher.Constraint("Coincident", 58, 2, 59, 1))
sketch2.addConstraint(Sketcher.Constraint("Coincident", 59, 2, 60, 1))
sketch2.addConstraint(Sketcher.Constraint("Coincident", 60, 2, 61, 1))
sketch2.addConstraint(Sketcher.Constraint("Coincident", 61, 2, 62, 1))
sketch2.addConstraint(Sketcher.Constraint("Coincident", 62, 2, 63, 1))
sketch2.addConstraint(Sketcher.Constraint("Coincident", 63, 2, 51, 1))
sketch2.addConstraint(Sketcher.Constraint("Coincident", 64, 2, 65, 1))
sketch2.addConstraint(Sketcher.Constraint("Coincident", 65, 2, 66, 1))
sketch2.addConstraint(Sketcher.Constraint("Coincident", 66, 2, 67, 1))
sketch2.addConstraint(Sketcher.Constraint("Coincident", 67, 2, 68, 1))
sketch2.addConstraint(Sketcher.Constraint("Coincident", 68, 2, 69, 1))
sketch2.addConstraint(Sketcher.Constraint("Coincident", 69, 2, 70, 1))
sketch2.addConstraint(Sketcher.Constraint("Coincident", 70, 2, 71, 1))
sketch2.addConstraint(Sketcher.Constraint("Coincident", 71, 2, 64, 1))
sketch2.addConstraint(Sketcher.Constraint("Coincident", 72, 2, 73, 1))
sketch2.addConstraint(Sketcher.Constraint("Coincident", 73, 2, 74, 1))
sketch2.addConstraint(Sketcher.Constraint("Coincident", 74, 2, 72, 1))
sketch2.addConstraint(Sketcher.Constraint("Coincident", 75, 2, 76, 1))
sketch2.addConstraint(Sketcher.Constraint("Coincident", 76, 2, 77, 1))
sketch2.addConstraint(Sketcher.Constraint("Coincident", 77, 2, 78, 1))
sketch2.addConstraint(Sketcher.Constraint("Coincident", 78, 2, 79, 1))
sketch2.addConstraint(Sketcher.Constraint("Coincident", 79, 2, 80, 1))
sketch2.addConstraint(Sketcher.Constraint("Coincident", 80, 2, 81, 1))
sketch2.addConstraint(Sketcher.Constraint("Coincident", 81, 2, 82, 1))
sketch2.addConstraint(Sketcher.Constraint("Coincident", 82, 2, 83, 1))
sketch2.addConstraint(Sketcher.Constraint("Coincident", 83, 2, 84, 1))
sketch2.addConstraint(Sketcher.Constraint("Coincident", 84, 2, 85, 1))
sketch2.addConstraint(Sketcher.Constraint("Coincident", 85, 2, 86, 1))
sketch2.addConstraint(Sketcher.Constraint("Coincident", 86, 2, 75, 1))
sketch2.addConstraint(Sketcher.Constraint("Horizontal", 0))
sketch2.addConstraint(Sketcher.Constraint("Vertical", 1))
sketch2.addConstraint(Sketcher.Constraint("Horizontal", 2))
sketch2.addConstraint(Sketcher.Constraint("Vertical", 3))
sketch2.addConstraint(Sketcher.Constraint("Horizontal", 4))
sketch2.addConstraint(Sketcher.Constraint("Vertical", 5))
sketch2.addConstraint(Sketcher.Constraint("Horizontal", 6))
sketch2.addConstraint(Sketcher.Constraint("Vertical", 8))
sketch2.addConstraint(Sketcher.Constraint("Horizontal", 9))
sketch2.addConstraint(Sketcher.Constraint("Vertical", 10))
sketch2.addConstraint(Sketcher.Constraint("Vertical", 13))
sketch2.addConstraint(Sketcher.Constraint("Horizontal", 14))
sketch2.addConstraint(Sketcher.Constraint("Horizontal", 24))
sketch2.addConstraint(Sketcher.Constraint("Horizontal", 26))
sketch2.addConstraint(Sketcher.Constraint("Horizontal", 29))
sketch2.addConstraint(Sketcher.Constraint("Vertical", 31))
sketch2.addConstraint(Sketcher.Constraint("Horizontal", 32))
sketch2.addConstraint(Sketcher.Constraint("Vertical", 33))
sketch2.addConstraint(Sketcher.Constraint("Horizontal", 34))
sketch2.addConstraint(Sketcher.Constraint("Vertical", 35))
sketch2.addConstraint(Sketcher.Constraint("Horizontal", 36))
sketch2.addConstraint(Sketcher.Constraint("Vertical", 37))
sketch2.addConstraint(Sketcher.Constraint("Horizontal", 38))
sketch2.addConstraint(Sketcher.Constraint("Horizontal", 39))
sketch2.addConstraint(Sketcher.Constraint("Vertical", 40))
sketch2.addConstraint(Sketcher.Constraint("Vertical", 43))
sketch2.addConstraint(Sketcher.Constraint("Horizontal", 44))
sketch2.addConstraint(Sketcher.Constraint("Vertical", 45))
sketch2.addConstraint(Sketcher.Constraint("Horizontal", 46))
sketch2.addConstraint(Sketcher.Constraint("Vertical", 47))
sketch2.addConstraint(Sketcher.Constraint("Vertical", 50))
sketch2.addConstraint(Sketcher.Constraint("Horizontal", 51))
sketch2.addConstraint(Sketcher.Constraint("Vertical", 52))
sketch2.addConstraint(Sketcher.Constraint("Horizontal", 53))
sketch2.addConstraint(Sketcher.Constraint("Horizontal", 56))
sketch2.addConstraint(Sketcher.Constraint("Vertical", 57))
sketch2.addConstraint(Sketcher.Constraint("Horizontal", 58))
sketch2.addConstraint(Sketcher.Constraint("Horizontal", 61))
sketch2.addConstraint(Sketcher.Constraint("Horizontal", 64))
sketch2.addConstraint(Sketcher.Constraint("Horizontal", 66))
sketch2.addConstraint(Sketcher.Constraint("Horizontal", 68))
sketch2.addConstraint(Sketcher.Constraint("Horizontal", 70))
sketch2.addConstraint(Sketcher.Constraint("Horizontal", 72))
sketch2.addConstraint(Sketcher.Constraint("Horizontal", 75))
sketch2.addConstraint(Sketcher.Constraint("Horizontal", 78))
sketch2.addConstraint(Sketcher.Constraint("Horizontal", 81))
sketch2.addConstraint(Sketcher.Constraint("Horizontal", 84))
sketch2.addConstraint(Sketcher.Constraint("DistanceY", 52, 2, 52, 1, 4.0))
sketch2.addConstraint(Sketcher.Constraint("DistanceY", 57, 1, 57, 2, 4.0))
sketch2.addConstraint(Sketcher.Constraint("Distance", 77, 2.174699))
sketch2.addConstraint(Sketcher.Constraint("DistanceX", 2, 1, 2, 2, 0.611111))
sketch2.addConstraint(Sketcher.Constraint("DistanceX", 4, 2, 4, 1, 0.611111))
sketch2.addConstraint(Sketcher.Constraint("DistanceX", 24, 1, 24, 2, 0.732639))
sketch2.addConstraint(Sketcher.Constraint("DistanceX", 44, 2, 44, 1, 0.607639))
sketch2.addConstraint(Sketcher.Constraint("DistanceX", 58, 1, 58, 2, 0.611111))
sketch2.addConstraint(Sketcher.Constraint("DistanceX", 68, 1, 68, 2, 0.615451))
sketch2.addConstraint(Sketcher.Constraint("DistanceX", 70, 1, 70, 2, 1.572049))
sketch2.addConstraint(Sketcher.Constraint("DistanceX", 75, 1, 75, 2, 0.838542))
sketch2.addConstraint(Sketcher.Constraint("DistanceX", 81, 2, 81, 1, 0.838542))
sketch2.addConstraint(Sketcher.Constraint("DistanceY", 1, 2, 1, 1, 0.888889))
sketch2.addConstraint(Sketcher.Constraint("DistanceY", 3, 2, 3, 1, 0.611111))
sketch2.addConstraint(Sketcher.Constraint("DistanceY", 10, 1, 10, 2, 0.888889))
sketch2.addConstraint(Sketcher.Constraint("DistanceY", 40, 2, 40, 1, 1.897569))
sketch2.addConstraint(Sketcher.Constraint("DistanceY", 47, 2, 47, 1, 1.490451))
sketch2.addConstraint(Sketcher.Constraint("DistanceX", 14, 2, -1, 1, 17.857202))
sketch2.addConstraint(Sketcher.Constraint("Distance", 7, 3.154792))
sketch2.addConstraint(Sketcher.Constraint("Distance", 25, 4.19206))
sketch2.addConstraint(Sketcher.Constraint("Distance", 28, 3.142362))
sketch2.addConstraint(Sketcher.Constraint("Distance", 65, 4.21637))
sketch2.addConstraint(Sketcher.Constraint("Distance", 69, 0.99453))
sketch2.addConstraint(Sketcher.Constraint("Distance", 71, 0.995349))
sketch2.addConstraint(Sketcher.Constraint("Distance", 73, 1.852081))
sketch2.addConstraint(Sketcher.Constraint("Distance", 74, 1.853721))
sketch2.addConstraint(Sketcher.Constraint("Distance", 76, 2.46154))
sketch2.addConstraint(Sketcher.Constraint("Distance", 82, 2.164482))
sketch2.addConstraint(Sketcher.Constraint("DistanceX", 0, 1, 0, 2, 0.722222))
sketch2.addConstraint(Sketcher.Constraint("DistanceX", 6, 2, 6, 1, 0.722222))
sketch2.addConstraint(Sketcher.Constraint("DistanceX", 9, 1, 9, 2, 1.722222))
sketch2.addConstraint(Sketcher.Constraint("DistanceX", 26, 2, 26, 1, 0.601562))
sketch2.addConstraint(Sketcher.Constraint("DistanceX", 29, 2, 29, 1, 0.762153))
sketch2.addConstraint(Sketcher.Constraint("DistanceX", 32, 1, 32, 2, 0.666667))
sketch2.addConstraint(Sketcher.Constraint("DistanceX", 36, 1, 36, 2, 0.666667))
sketch2.addConstraint(Sketcher.Constraint("DistanceX", 51, 1, 51, 2, 0.722222))
sketch2.addConstraint(Sketcher.Constraint("DistanceX", 53, 2, 53, 1, 1.132812))
sketch2.addConstraint(Sketcher.Constraint("DistanceX", 56, 2, 56, 1, 1.171007))
sketch2.addConstraint(Sketcher.Constraint("DistanceX", 61, 1, 61, 2, 0.377604))
sketch2.addConstraint(Sketcher.Constraint("DistanceX", 64, 1, 64, 2, 0.769965))
sketch2.addConstraint(Sketcher.Constraint("DistanceX", 66, 2, 66, 1, 0.931424))
sketch2.addConstraint(Sketcher.Constraint("DistanceX", 72, 2, 72, 1, 1.166667))
sketch2.addConstraint(Sketcher.Constraint("DistanceX", 78, 2, 78, 1, 0.640625))
sketch2.addConstraint(Sketcher.Constraint("DistanceX", 84, 1, 84, 2, 0.666667))
sketch2.addConstraint(Sketcher.Constraint("DistanceY", 5, 2, 5, 1, 2.555556))
sketch2.addConstraint(Sketcher.Constraint("DistanceY", 13, 1, 13, 2, 1.096354))
sketch2.addConstraint(Sketcher.Constraint("DistanceY", 31, 1, 31, 2, 0.677083))
sketch2.addConstraint(Sketcher.Constraint("DistanceY", 35, 1, 35, 2, 2.944444))
sketch2.addConstraint(Sketcher.Constraint("DistanceY", 43, 2, 43, 1, 0.685764))
sketch2.addConstraint(Sketcher.Constraint("DistanceX", 2, 2, -1, 1, 15.486542))
sketch2.addConstraint(Sketcher.Constraint("DistanceY", 5, 2, -1, 1, 5.222062))
sketch2.addConstraint(Sketcher.Constraint("DistanceX", 24, 2, -1, 1, 9.782549))
sketch2.addConstraint(Sketcher.Constraint("DistanceX", 25, 2, -1, 1, 8.528209))
sketch2.addConstraint(Sketcher.Constraint("DistanceY", 27, 2, -1, 1, 2.169978))
sketch2.addConstraint(Sketcher.Constraint("DistanceX", 29, 2, -1, 1, 11.778209))
sketch2.addConstraint(Sketcher.Constraint("DistanceX", 31, 2, -1, 1, 6.653209))
sketch2.addConstraint(Sketcher.Constraint("DistanceX", 35, 2, -1, 1, 6.653209))
sketch2.addConstraint(Sketcher.Constraint("DistanceY", 37, 2, -1, 1, 4.11095))
sketch2.addConstraint(Sketcher.Constraint("DistanceX", -1, 1, 53, 2, 2.32509))
sketch2.addConstraint(Sketcher.Constraint("DistanceY", 54, 2, -1, 1, 2.588381))
sketch2.addConstraint(Sketcher.Constraint("DistanceX", -1, 1, 55, 2, 0.740021))
sketch2.addConstraint(Sketcher.Constraint("DistanceX", -1, 1, 60, 2, 1.279951))
sketch2.addConstraint(Sketcher.Constraint("DistanceX", -1, 1, 62, 2, 2.721791))
sketch2.addConstraint(Sketcher.Constraint("DistanceX", -1, 1, 64, 2, 7.471791))
sketch2.addConstraint(Sketcher.Constraint("DistanceX", -1, 1, 65, 2, 6.138458))
sketch2.addConstraint(Sketcher.Constraint("DistanceX", -1, 1, 67, 2, 3.888458))
sketch2.addConstraint(Sketcher.Constraint("DistanceX", -1, 1, 69, 2, 4.815541))
sketch2.addConstraint(Sketcher.Constraint("DistanceY", 69, 2, -1, 1, 2.11095))
sketch2.addConstraint(Sketcher.Constraint("DistanceY", 72, 2, -1, 1, 2.722062))
sketch2.addConstraint(Sketcher.Constraint("DistanceX", -1, 1, 73, 2, 5.596791))
sketch2.addConstraint(Sketcher.Constraint("DistanceX", -1, 1, 75, 2, 10.86068))
sketch2.addConstraint(Sketcher.Constraint("DistanceX", -1, 1, 76, 2, 9.63325))
sketch2.addConstraint(Sketcher.Constraint("DistanceX", -1, 1, 77, 2, 10.749569))
sketch2.addConstraint(Sketcher.Constraint("DistanceX", -1, 1, 79, 2, 9.319882))
sketch2.addConstraint(Sketcher.Constraint("DistanceY", 79, 2, -1, 1, 3.847062))
sketch2.addConstraint(Sketcher.Constraint("DistanceX", -1, 1, 81, 2, 7.721791))
sketch2.addConstraint(Sketcher.Constraint("DistanceX", -1, 1, 84, 2, 8.221791))
sketch2.addConstraint(Sketcher.Constraint("Distance", 11, 0.382735))
sketch2.addConstraint(Sketcher.Constraint("Distance", 15, 2.097326))
sketch2.addConstraint(Sketcher.Constraint("Distance", 27, 3.140537))
sketch2.addConstraint(Sketcher.Constraint("Distance", 30, 4.194666))
sketch2.addConstraint(Sketcher.Constraint("Distance", 54, 2.694653))
sketch2.addConstraint(Sketcher.Constraint("Distance", 55, 2.699755))
sketch2.addConstraint(Sketcher.Constraint("Distance", 59, 3.501764))
sketch2.addConstraint(Sketcher.Constraint("Distance", 60, 3.666254))
sketch2.addConstraint(Sketcher.Constraint("Distance", 62, 3.659884))
sketch2.addConstraint(Sketcher.Constraint("Distance", 63, 3.501764))
sketch2.addConstraint(Sketcher.Constraint("Distance", 79, 1.537385))
sketch2.addConstraint(Sketcher.Constraint("Distance", 80, 1.522448))
sketch2.addConstraint(Sketcher.Constraint("Distance", 83, 2.462878))
sketch2.addConstraint(Sketcher.Constraint("Distance", 85, 1.796358))
sketch2.addConstraint(Sketcher.Constraint("Distance", 86, 1.787637))
sketch2.addConstraint(Sketcher.Constraint("DistanceY", 31, 2, -1, 1, 4.489423))
sketch2.addConstraint(Sketcher.Constraint("DistanceY", 51, 2, -1, 1, 1.166506))
sketch2.addConstraint(Sketcher.Constraint("DistanceX", -1, 1, 82, 2, 8.801652))
sketch2.setExpression("Constraints[137]", "Params.sketch2_height")
sketch2.setExpression("Constraints[138]", "Params.sketch2_height2")
pocket1 = body.newObject("PartDesign::Pocket", "Pocket")
pocket1.Profile = sketch2
pocket1.setExpression("Length", "Params.pocket1_length")
pocket1.Reversed = True

doc.recompute()
